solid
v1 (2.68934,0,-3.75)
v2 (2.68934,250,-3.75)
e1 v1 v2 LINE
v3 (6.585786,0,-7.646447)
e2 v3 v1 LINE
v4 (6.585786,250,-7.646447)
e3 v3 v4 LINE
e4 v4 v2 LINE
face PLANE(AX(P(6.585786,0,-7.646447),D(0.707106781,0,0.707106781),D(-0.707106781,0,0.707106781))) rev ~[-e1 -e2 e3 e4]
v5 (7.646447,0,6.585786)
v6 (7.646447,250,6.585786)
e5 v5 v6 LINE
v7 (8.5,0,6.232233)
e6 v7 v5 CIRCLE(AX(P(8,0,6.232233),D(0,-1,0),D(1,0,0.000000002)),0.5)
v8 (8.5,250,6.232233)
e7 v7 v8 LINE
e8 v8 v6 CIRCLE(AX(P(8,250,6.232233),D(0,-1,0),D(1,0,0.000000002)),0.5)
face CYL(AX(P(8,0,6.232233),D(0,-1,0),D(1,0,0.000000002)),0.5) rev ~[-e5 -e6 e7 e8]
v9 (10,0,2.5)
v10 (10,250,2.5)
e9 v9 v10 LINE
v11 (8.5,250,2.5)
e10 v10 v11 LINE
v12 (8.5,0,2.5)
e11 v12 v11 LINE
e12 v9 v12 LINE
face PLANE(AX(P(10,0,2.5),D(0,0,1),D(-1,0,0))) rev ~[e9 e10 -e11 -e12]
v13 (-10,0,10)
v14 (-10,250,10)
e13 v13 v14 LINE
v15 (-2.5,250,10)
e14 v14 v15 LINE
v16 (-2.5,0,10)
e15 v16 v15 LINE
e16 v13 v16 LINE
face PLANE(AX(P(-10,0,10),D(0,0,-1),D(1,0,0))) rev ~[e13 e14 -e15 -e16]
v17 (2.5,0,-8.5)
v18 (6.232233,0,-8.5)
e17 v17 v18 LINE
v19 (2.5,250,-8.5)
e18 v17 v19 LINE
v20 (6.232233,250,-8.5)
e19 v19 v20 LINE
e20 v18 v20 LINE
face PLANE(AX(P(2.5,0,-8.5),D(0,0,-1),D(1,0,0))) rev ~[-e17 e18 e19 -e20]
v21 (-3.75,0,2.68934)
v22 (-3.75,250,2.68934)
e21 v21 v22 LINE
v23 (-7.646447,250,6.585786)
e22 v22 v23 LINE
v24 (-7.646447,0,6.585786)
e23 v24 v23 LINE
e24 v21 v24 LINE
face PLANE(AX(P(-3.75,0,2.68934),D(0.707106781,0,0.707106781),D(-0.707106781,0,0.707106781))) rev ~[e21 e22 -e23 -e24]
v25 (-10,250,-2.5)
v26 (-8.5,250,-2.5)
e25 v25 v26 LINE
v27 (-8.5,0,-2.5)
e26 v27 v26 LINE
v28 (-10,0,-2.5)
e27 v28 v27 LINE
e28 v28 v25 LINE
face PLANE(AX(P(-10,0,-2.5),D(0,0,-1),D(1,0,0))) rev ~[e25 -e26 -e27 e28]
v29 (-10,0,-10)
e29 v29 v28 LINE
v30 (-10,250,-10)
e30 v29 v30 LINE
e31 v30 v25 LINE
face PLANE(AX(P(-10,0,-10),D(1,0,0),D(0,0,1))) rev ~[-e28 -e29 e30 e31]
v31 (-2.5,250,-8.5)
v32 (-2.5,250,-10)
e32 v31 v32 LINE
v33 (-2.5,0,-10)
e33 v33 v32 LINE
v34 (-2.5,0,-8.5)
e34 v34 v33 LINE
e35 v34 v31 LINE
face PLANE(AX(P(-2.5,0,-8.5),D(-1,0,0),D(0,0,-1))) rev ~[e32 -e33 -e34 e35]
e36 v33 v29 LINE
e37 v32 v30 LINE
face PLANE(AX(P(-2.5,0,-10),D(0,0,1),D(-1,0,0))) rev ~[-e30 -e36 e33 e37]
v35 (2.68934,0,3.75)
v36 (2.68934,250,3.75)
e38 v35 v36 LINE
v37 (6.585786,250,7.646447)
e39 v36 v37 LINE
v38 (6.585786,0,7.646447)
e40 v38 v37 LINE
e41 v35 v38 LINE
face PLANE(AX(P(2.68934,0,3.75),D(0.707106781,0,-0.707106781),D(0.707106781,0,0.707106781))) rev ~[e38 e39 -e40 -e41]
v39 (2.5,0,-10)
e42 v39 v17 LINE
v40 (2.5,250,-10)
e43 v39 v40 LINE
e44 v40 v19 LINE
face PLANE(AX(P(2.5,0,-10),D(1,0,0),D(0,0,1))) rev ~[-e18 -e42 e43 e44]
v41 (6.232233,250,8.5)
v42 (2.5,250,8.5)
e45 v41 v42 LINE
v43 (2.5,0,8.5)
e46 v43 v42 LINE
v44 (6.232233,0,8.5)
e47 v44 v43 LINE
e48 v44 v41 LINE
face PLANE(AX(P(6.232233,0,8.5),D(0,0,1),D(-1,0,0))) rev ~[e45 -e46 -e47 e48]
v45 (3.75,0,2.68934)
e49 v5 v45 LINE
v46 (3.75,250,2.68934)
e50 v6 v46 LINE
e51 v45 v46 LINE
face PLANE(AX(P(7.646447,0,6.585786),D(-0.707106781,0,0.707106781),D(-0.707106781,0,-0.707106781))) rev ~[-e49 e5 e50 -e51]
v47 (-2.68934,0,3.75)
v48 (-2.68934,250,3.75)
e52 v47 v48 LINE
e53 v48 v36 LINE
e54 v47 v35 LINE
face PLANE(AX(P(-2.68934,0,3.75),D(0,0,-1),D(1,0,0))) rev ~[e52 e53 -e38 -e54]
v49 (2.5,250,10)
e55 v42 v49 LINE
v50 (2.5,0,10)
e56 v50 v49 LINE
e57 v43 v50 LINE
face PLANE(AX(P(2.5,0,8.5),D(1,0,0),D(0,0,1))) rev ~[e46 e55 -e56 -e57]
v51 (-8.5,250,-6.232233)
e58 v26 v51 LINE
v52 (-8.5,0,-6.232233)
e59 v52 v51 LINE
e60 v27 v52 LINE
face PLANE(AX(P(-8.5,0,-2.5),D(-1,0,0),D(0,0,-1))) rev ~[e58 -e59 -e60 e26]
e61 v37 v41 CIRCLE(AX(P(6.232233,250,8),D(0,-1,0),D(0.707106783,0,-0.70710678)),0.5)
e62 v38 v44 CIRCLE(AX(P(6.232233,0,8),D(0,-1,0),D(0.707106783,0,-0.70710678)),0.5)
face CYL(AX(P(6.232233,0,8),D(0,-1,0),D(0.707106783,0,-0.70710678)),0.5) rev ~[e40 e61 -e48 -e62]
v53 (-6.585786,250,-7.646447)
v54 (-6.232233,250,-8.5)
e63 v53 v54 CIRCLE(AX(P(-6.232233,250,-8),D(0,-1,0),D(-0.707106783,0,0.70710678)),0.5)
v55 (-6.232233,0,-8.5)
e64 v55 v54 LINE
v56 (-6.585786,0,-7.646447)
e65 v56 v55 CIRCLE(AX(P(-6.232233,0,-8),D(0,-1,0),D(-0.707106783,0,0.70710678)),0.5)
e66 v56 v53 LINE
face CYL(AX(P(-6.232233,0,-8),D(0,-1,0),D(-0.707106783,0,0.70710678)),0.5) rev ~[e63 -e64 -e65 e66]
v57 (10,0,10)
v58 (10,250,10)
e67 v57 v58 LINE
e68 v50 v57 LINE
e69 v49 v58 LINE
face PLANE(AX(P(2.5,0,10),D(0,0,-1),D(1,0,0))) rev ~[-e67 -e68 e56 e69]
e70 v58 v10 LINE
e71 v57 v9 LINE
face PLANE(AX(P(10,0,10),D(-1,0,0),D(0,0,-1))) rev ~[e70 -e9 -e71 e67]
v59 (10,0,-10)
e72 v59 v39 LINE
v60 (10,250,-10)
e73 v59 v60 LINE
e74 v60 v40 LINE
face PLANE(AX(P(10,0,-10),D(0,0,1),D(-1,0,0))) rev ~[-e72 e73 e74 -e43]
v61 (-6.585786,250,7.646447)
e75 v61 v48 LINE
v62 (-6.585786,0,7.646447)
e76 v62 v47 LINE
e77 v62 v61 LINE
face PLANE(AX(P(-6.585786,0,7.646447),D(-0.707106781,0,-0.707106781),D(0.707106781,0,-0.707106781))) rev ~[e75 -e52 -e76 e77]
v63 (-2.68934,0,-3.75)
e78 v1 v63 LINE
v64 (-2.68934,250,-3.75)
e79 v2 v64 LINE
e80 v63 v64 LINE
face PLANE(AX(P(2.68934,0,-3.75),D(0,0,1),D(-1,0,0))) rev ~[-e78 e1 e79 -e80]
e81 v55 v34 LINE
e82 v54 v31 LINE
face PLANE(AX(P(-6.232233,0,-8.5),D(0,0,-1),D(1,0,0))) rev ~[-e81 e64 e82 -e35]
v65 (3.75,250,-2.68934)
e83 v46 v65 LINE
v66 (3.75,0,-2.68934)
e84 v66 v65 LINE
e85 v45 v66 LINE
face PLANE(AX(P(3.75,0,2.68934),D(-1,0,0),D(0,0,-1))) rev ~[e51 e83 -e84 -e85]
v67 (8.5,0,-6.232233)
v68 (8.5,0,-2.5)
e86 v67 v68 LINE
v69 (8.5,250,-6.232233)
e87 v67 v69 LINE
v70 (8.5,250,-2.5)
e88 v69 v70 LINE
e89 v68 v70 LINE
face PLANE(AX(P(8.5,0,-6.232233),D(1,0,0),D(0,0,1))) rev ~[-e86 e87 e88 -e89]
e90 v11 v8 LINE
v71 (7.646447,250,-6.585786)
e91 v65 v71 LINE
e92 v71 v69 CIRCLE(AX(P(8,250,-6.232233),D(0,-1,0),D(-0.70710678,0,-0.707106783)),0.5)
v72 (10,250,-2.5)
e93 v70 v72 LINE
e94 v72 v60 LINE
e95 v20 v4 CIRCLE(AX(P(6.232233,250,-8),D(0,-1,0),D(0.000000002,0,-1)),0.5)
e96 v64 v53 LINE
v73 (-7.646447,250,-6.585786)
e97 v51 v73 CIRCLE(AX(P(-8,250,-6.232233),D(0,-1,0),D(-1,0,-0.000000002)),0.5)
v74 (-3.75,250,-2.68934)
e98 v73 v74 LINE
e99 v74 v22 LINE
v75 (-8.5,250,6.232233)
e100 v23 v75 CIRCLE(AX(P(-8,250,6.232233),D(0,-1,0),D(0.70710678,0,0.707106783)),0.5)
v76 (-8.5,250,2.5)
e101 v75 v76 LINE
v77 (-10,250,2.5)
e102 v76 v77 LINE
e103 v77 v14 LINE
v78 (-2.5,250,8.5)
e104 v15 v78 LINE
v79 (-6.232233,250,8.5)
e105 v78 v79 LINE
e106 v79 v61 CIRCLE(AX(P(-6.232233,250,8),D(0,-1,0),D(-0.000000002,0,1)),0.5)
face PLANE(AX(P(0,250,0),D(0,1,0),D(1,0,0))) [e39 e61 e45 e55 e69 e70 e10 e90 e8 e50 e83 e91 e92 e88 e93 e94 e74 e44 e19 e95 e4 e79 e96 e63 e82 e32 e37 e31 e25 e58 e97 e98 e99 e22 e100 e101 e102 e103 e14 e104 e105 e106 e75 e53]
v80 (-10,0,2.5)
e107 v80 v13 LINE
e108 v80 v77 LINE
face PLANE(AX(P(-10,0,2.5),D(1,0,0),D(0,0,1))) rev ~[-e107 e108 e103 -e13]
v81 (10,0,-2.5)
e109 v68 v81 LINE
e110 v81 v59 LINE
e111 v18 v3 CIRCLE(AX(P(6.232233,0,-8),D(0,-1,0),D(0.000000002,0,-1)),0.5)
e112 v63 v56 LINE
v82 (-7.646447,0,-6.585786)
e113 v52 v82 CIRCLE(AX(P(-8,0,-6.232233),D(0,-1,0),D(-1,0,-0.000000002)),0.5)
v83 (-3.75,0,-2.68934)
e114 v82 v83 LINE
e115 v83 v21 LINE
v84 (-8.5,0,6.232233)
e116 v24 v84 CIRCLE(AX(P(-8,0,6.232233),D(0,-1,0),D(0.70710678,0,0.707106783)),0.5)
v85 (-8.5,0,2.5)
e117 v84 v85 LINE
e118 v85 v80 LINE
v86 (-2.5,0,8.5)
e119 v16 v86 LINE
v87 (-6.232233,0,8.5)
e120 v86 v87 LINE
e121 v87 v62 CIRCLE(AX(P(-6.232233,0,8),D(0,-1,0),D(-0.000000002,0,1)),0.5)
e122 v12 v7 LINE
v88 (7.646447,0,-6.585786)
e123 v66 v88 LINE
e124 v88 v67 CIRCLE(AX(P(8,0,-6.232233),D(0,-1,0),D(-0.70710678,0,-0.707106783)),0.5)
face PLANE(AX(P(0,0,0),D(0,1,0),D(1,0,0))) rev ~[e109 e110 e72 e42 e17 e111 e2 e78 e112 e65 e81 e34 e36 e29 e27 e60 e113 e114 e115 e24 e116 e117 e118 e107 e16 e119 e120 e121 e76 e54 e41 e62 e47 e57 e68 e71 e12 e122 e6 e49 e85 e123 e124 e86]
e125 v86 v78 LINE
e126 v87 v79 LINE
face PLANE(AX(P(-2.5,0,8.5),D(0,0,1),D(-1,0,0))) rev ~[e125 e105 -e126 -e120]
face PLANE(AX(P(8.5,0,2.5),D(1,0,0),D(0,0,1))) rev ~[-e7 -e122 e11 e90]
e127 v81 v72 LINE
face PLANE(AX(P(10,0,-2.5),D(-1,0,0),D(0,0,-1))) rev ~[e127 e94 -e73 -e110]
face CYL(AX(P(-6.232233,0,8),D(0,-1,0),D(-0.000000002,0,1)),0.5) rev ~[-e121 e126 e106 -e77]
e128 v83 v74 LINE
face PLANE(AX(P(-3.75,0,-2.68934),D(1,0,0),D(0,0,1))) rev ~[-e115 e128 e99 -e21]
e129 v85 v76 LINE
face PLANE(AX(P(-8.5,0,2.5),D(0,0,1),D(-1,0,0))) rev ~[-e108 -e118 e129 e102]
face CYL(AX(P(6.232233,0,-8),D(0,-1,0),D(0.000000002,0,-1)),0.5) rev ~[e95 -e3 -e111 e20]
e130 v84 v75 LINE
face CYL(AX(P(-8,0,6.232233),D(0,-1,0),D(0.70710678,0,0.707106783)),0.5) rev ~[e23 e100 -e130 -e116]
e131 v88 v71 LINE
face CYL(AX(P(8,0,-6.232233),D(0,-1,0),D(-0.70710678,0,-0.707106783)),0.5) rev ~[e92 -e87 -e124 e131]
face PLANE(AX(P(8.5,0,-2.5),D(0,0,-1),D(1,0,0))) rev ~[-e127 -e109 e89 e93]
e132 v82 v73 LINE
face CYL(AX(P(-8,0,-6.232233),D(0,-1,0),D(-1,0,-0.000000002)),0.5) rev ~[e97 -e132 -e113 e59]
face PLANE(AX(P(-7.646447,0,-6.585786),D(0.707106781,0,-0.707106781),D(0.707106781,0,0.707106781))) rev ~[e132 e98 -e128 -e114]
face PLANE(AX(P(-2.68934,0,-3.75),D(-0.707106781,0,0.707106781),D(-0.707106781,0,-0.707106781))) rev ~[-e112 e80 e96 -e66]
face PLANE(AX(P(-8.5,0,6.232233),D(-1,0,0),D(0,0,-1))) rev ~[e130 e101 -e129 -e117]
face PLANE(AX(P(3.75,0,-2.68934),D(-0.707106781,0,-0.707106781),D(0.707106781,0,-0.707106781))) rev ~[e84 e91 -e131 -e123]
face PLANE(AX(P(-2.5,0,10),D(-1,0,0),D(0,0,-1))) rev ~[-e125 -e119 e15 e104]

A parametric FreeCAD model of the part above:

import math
import FreeCAD as App
import Part
import Sketcher

V = App.Vector
Q = App.Units.Quantity

doc = App.newDocument("Part")
body = doc.addObject("PartDesign::Body", "Body")

sketch1 = body.newObject("Sketcher::SketchObject", "Sketch")
sketch1.AttachmentSupport = (doc.getObject("XZ_Plane"), [""])
sketch1.MapMode = "FlatFace"
sketch1.addGeometry([
    Part.LineSegment(V(-10, 2.5, 0), V(-10, 10, 0)),
    Part.LineSegment(V(-10, 10, 0), V(-2.5, 10, 0)),
    Part.LineSegment(V(-2.5, 10, 0), V(-2.5, 8.5, 0)),
    Part.LineSegment(V(-2.5, 8.5, 0), V(-6.232233, 8.5, 0)),
    Part.ArcOfCircle(Part.Circle(V(-6.232233, 8, 0), V(0, 0, 1), 0.5), math.radians(90), math.radians(225)),
    Part.LineSegment(V(-6.585786, 7.646447, 0), V(-2.68934, 3.75, 0)),
    Part.LineSegment(V(-2.68934, 3.75, 0), V(2.68934, 3.75, 0)),
    Part.LineSegment(V(2.68934, 3.75, 0), V(6.585786, 7.646447, 0)),
    Part.ArcOfCircle(Part.Circle(V(6.232233, 8, 0), V(0, 0, 1), 0.5), math.radians(-45), math.radians(90)),
    Part.LineSegment(V(6.232233, 8.5, 0), V(2.5, 8.5, 0)),
    Part.LineSegment(V(2.5, 8.5, 0), V(2.5, 10, 0)),
    Part.LineSegment(V(2.5, 10, 0), V(10, 10, 0)),
    Part.LineSegment(V(10, 10, 0), V(10, 2.5, 0)),
    Part.LineSegment(V(10, 2.5, 0), V(8.5, 2.5, 0)),
    Part.LineSegment(V(8.5, 2.5, 0), V(8.5, 6.232233, 0)),
    Part.ArcOfCircle(Part.Circle(V(8, 6.232233, 0), V(0, 0, 1), 0.5), math.radians(0), math.radians(135)),
    Part.LineSegment(V(7.646447, 6.585786, 0), V(3.75, 2.68934, 0)),
    Part.LineSegment(V(3.75, 2.68934, 0), V(3.75, -2.68934, 0)),
    Part.LineSegment(V(3.75, -2.68934, 0), V(7.646447, -6.585786, 0)),
    Part.ArcOfCircle(Part.Circle(V(8, -6.232233, 0), V(0, 0, 1), 0.5), math.radians(-135), math.radians(0)),
    Part.LineSegment(V(8.5, -6.232233, 0), V(8.5, -2.5, 0)),
    Part.LineSegment(V(8.5, -2.5, 0), V(10, -2.5, 0)),
    Part.LineSegment(V(10, -2.5, 0), V(10, -10, 0)),
    Part.LineSegment(V(10, -10, 0), V(2.5, -10, 0)),
    Part.LineSegment(V(2.5, -10, 0), V(2.5, -8.5, 0)),
    Part.LineSegment(V(2.5, -8.5, 0), V(6.232233, -8.5, 0)),
    Part.ArcOfCircle(Part.Circle(V(6.232233, -8, 0), V(0, 0, 1), 0.5), math.radians(-90), math.radians(45)),
    Part.LineSegment(V(6.585786, -7.646447, 0), V(2.68934, -3.75, 0)),
    Part.LineSegment(V(2.68934, -3.75, 0), V(-2.68934, -3.75, 0)),
    Part.LineSegment(V(-2.68934, -3.75, 0), V(-6.585786, -7.646447, 0)),
    Part.ArcOfCircle(Part.Circle(V(-6.232233, -8, 0), V(0, 0, 1), 0.5), math.radians(135), math.radians(270)),
    Part.LineSegment(V(-6.232233, -8.5, 0), V(-2.5, -8.5, 0)),
    Part.LineSegment(V(-2.5, -8.5, 0), V(-2.5, -10, 0)),
    Part.LineSegment(V(-2.5, -10, 0), V(-10, -10, 0)),
    Part.LineSegment(V(-10, -10, 0), V(-10, -2.5, 0)),
    Part.LineSegment(V(-10, -2.5, 0), V(-8.5, -2.5, 0)),
    Part.LineSegment(V(-8.5, -2.5, 0), V(-8.5, -6.232233, 0)),
    Part.ArcOfCircle(Part.Circle(V(-8, -6.232233, 0), V(0, 0, 1), 0.5), math.radians(-180), math.radians(-45)),
    Part.LineSegment(V(-7.646447, -6.585786, 0), V(-3.75, -2.68934, 0)),
    Part.LineSegment(V(-3.75, -2.68934, 0), V(-3.75, 2.68934, 0)),
    Part.LineSegment(V(-3.75, 2.68934, 0), V(-7.646447, 6.585786, 0)),
    Part.ArcOfCircle(Part.Circle(V(-8, 6.232233, 0), V(0, 0, 1), 0.5), math.radians(45), math.radians(180)),
    Part.LineSegment(V(-8.5, 6.232233, 0), V(-8.5, 2.5, 0)),
    Part.LineSegment(V(-8.5, 2.5, 0), V(-10, 2.5, 0)),
], False)
sketch1.addConstraint([
    Sketcher.Constraint("Coincident", 0, 2, 1, 1),
    Sketcher.Constraint("Coincident", 1, 2, 2, 1),
    Sketcher.Constraint("Coincident", 2, 2, 3, 1),
    Sketcher.Constraint("Tangent", 3, 2, 4, 1),
    Sketcher.Constraint("Tangent", 4, 2, 5, 1),
    Sketcher.Constraint("Coincident", 5, 2, 6, 1),
    Sketcher.Constraint("Coincident", 6, 2, 7, 1),
    Sketcher.Constraint("Tangent", 7, 2, 8, 1),
    Sketcher.Constraint("Tangent", 8, 2, 9, 1),
    Sketcher.Constraint("Coincident", 9, 2, 10, 1),
    Sketcher.Constraint("Coincident", 10, 2, 11, 1),
    Sketcher.Constraint("Coincident", 11, 2, 12, 1),
    Sketcher.Constraint("Coincident", 12, 2, 13, 1),
    Sketcher.Constraint("Coincident", 13, 2, 14, 1),
    Sketcher.Constraint("Tangent", 14, 2, 15, 1),
    Sketcher.Constraint("Tangent", 15, 2, 16, 1),
    Sketcher.Constraint("Coincident", 16, 2, 17, 1),
    Sketcher.Constraint("Coincident", 17, 2, 18, 1),
    Sketcher.Constraint("Tangent", 18, 2, 19, 1),
    Sketcher.Constraint("Tangent", 19, 2, 20, 1),
    Sketcher.Constraint("Coincident", 20, 2, 21, 1),
    Sketcher.Constraint("Coincident", 21, 2, 22, 1),
    Sketcher.Constraint("Coincident", 22, 2, 23, 1),
    Sketcher.Constraint("Coincident", 23, 2, 24, 1),
    Sketcher.Constraint("Coincident", 24, 2, 25, 1),
    Sketcher.Constraint("Tangent", 25, 2, 26, 1),
    Sketcher.Constraint("Tangent", 26, 2, 27, 1),
    Sketcher.Constraint("Coincident", 27, 2, 28, 1),
    Sketcher.Constraint("Coincident", 28, 2, 29, 1),
    Sketcher.Constraint("Tangent", 29, 2, 30, 1),
    Sketcher.Constraint("Tangent", 30, 2, 31, 1),
    Sketcher.Constraint("Coincident", 31, 2, 32, 1),
    Sketcher.Constraint("Coincident", 32, 2, 33, 1),
    Sketcher.Constraint("Coincident", 33, 2, 34, 1),
    Sketcher.Constraint("Coincident", 34, 2, 35, 1),
    Sketcher.Constraint("Coincident", 35, 2, 36, 1),
    Sketcher.Constraint("Tangent", 36, 2, 37, 1),
    Sketcher.Constraint("Tangent", 37, 2, 38, 1),
    Sketcher.Constraint("Coincident", 38, 2, 39, 1),
    Sketcher.Constraint("Coincident", 39, 2, 40, 1),
    Sketcher.Constraint("Tangent", 40, 2, 41, 1),
    Sketcher.Constraint("Tangent", 41, 2, 42, 1),
    Sketcher.Constraint("Coincident", 42, 2, 43, 1),
    Sketcher.Constraint("Coincident", 43, 2, 0, 1),
    Sketcher.Constraint("Vertical", 0),
    Sketcher.Constraint("Horizontal", 1),
    Sketcher.Constraint("Vertical", 2),
    Sketcher.Constraint("Horizontal", 3),
    Sketcher.Constraint("Horizontal", 6),
    Sketcher.Constraint("Horizontal", 9),
    Sketcher.Constraint("Vertical", 10),
    Sketcher.Constraint("Horizontal", 11),
    Sketcher.Constraint("Vertical", 12),
    Sketcher.Constraint("Horizontal", 13),
    Sketcher.Constraint("Vertical", 14),
    Sketcher.Constraint("Vertical", 17),
    Sketcher.Constraint("Vertical", 20),
    Sketcher.Constraint("Horizontal", 21),
    Sketcher.Constraint("Vertical", 22),
    Sketcher.Constraint("Horizontal", 23),
    Sketcher.Constraint("Vertical", 24),
    Sketcher.Constraint("Horizontal", 25),
    Sketcher.Constraint("Horizontal", 28),
    Sketcher.Constraint("Horizontal", 31),
    Sketcher.Constraint("Vertical", 32),
    Sketcher.Constraint("Horizontal", 33),
    Sketcher.Constraint("Vertical", 34),
    Sketcher.Constraint("Horizontal", 35),
    Sketcher.Constraint("Vertical", 36),
    Sketcher.Constraint("Vertical", 39),
    Sketcher.Constraint("Vertical", 42),
    Sketcher.Constraint("Horizontal", 43),
    Sketcher.Constraint("Equal", 4, 8),
    Sketcher.Constraint("Equal", 8, 15),
    Sketcher.Constraint("Equal", 15, 19),
    Sketcher.Constraint("Equal", 19, 26),
    Sketcher.Constraint("Equal", 26, 30),
    Sketcher.Constraint("Equal", 30, 37),
    Sketcher.Constraint("Equal", 37, 41),
    Sketcher.Constraint("Symmetric", 4, 3, 26, 3, -1, 1),
    Sketcher.Constraint("Symmetric", 8, 3, 30, 3, -1, 1),
    Sketcher.Constraint("Symmetric", 15, 3, 37, 3, -1, 1),
    Sketcher.Constraint("Symmetric", 19, 3, 41, 3, -1, 1),
    Sketcher.Constraint("Symmetric", 0, 2, 22, 2, -1, 1),
    Sketcher.Constraint("Symmetric", 5, 2, 27, 2, -1, 1),
    Sketcher.Constraint("Symmetric", 10, 2, 32, 2, -1, 1),
    Sketcher.Constraint("Symmetric", 12, 2, 34, 2, -1, 1),
    Sketcher.Constraint("Symmetric", 16, 2, 38, 2, -1, 1),
    Sketcher.Constraint("Symmetric", 4, 3, 8, 3, -2),
    Sketcher.Constraint("Symmetric", 19, 3, 37, 3, -2),
    Sketcher.Constraint("Symmetric", 1, 2, 10, 2, -2),
    Sketcher.Constraint("Symmetric", 21, 2, 34, 2, -2),
    Sketcher.Constraint("Perpendicular", 5, 7),
    Sketcher.Constraint("Parallel", 7, 16),
    Sketcher.Constraint("Perpendicular", 16, 18),
    Sketcher.Constraint("Perpendicular", 27, 29),
    Sketcher.Constraint("Perpendicular", 38, 40),
    Sketcher.Constraint("Horizontal", 4, 2, 7, 2),
    Sketcher.Constraint("Horizontal", 13, 2, 42, 2),
    Sketcher.Constraint("Vertical", 10, 2, 23, 2),
    Sketcher.Constraint("Equal", 33, 0),
    Sketcher.Constraint("Equal", 43, 2),
    Sketcher.Constraint("Equal", 31, 14),
    Sketcher.Constraint("Equal", 28, 17),
    Sketcher.Constraint("Equal", 7, 16),
    Sketcher.Constraint("Radius", 4, Q("0.5 mm")),
    Sketcher.Constraint("DistanceX", 1, 1, 1, 2, Q("7.5 mm")),
    Sketcher.Constraint("DistanceX", 13, 2, 13, 1, Q("1.5 mm")),
    Sketcher.Constraint("DistanceY", -1, 1, 4, 3, Q("8 mm")),
    Sketcher.Constraint("DistanceY", -1, 1, 5, 2, Q("3.75 mm")),
    Sketcher.Constraint("DistanceX", 6, 1, 6, 2, Q("5.37868 mm")),
])
pad1 = body.newObject("PartDesign::Pad", "Pad")
pad1.Profile = sketch1
pad1.Length = 250
pad1.Reversed = True

doc.recompute()
